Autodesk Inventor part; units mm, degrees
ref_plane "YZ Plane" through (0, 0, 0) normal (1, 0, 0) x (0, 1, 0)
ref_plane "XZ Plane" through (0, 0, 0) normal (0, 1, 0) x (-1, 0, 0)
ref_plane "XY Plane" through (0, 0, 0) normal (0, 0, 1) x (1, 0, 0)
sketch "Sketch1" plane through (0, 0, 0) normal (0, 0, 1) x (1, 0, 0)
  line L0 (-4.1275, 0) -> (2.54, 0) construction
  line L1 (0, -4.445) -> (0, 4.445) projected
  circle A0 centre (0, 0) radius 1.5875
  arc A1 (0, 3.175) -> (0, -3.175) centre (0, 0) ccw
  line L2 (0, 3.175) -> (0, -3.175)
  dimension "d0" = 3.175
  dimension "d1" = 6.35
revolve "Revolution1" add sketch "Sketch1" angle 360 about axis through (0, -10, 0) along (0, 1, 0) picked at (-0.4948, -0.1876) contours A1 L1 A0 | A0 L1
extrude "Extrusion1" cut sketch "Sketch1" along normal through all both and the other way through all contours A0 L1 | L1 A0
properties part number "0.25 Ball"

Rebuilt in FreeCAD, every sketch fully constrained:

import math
import FreeCAD as App
import Part
import Sketcher

V = App.Vector
Q = App.Units.Quantity

doc = App.newDocument("Part")
params = doc.addObject("Spreadsheet::Sheet", "Params")
for row, (alias, value) in enumerate([
    ("sketch1_radius", "0.125 in"),
    ("revolution_angle", "360 deg"),
    ("sketch2_diameter", "0.125 in"),
], start=1):
    params.set(f"A{row}", alias)
    params.set(f"B{row}", "=" + value)
    params.setAlias(f"B{row}", alias)

body = doc.addObject("PartDesign::Body", "Body")

# Sketch on XY plane
sketch1 = doc.addObject("Sketcher::SketchObject", "Sketch")
body.addObject(sketch1)
sketch1.AttachmentSupport = (doc.XY_Plane, [""])
sketch1.MapMode = "FlatFace"
sketch1.addGeometry([
    Part.ArcOfCircle(Part.Circle(V(0, 0, 0), V(0, 0, 1), 3.2), math.radians(90), math.radians(270)),
    Part.LineSegment(V(0, -3.2, 0), V(0, 3.2, 0)),
], False)
sketch1.addConstraint([
    Sketcher.Constraint("Coincident", 0, 1, 1, 2),
    Sketcher.Constraint("Coincident", 1, 1, 0, 2),
    Sketcher.Constraint("Vertical", 1),
    Sketcher.Constraint("Coincident", 0, 3, -1, 1),
    Sketcher.Constraint("PointOnObject", 0, 1, -2),
    Sketcher.Constraint("Radius", 0, Q("0.125 in")),
])
sketch1.setExpression("Constraints[5]", "Params.sketch1_radius")
revolution = doc.addObject("PartDesign::Revolution", "Revolution")
body.addObject(revolution)
revolution.Profile = sketch1
revolution.ReferenceAxis = (sketch1, ["V_Axis"])
revolution.setExpression("Angle", "Params.revolution_angle")

# Sketch on XY plane
sketch2 = doc.addObject("Sketcher::SketchObject", "Sketch001")
body.addObject(sketch2)
sketch2.AttachmentSupport = (doc.XY_Plane, [""])
sketch2.MapMode = "FlatFace"
sketch2.addGeometry(Part.Circle(V(0, 0, 0), V(0, 0, 1), 1.6), False)
sketch2.addConstraint([
    Sketcher.Constraint("Coincident", 0, 3, -1, 1),
    Sketcher.Constraint("Diameter", 0, Q("0.125 in")),
])
sketch2.setExpression("Constraints[1]", "Params.sketch2_diameter")
pocket1 = doc.addObject("PartDesign::Pocket", "Pocket")
body.addObject(pocket1)
pocket1.Profile = sketch2
pocket1.Type = "ThroughAll"
pocket1.Midplane = True

doc.recompute()
